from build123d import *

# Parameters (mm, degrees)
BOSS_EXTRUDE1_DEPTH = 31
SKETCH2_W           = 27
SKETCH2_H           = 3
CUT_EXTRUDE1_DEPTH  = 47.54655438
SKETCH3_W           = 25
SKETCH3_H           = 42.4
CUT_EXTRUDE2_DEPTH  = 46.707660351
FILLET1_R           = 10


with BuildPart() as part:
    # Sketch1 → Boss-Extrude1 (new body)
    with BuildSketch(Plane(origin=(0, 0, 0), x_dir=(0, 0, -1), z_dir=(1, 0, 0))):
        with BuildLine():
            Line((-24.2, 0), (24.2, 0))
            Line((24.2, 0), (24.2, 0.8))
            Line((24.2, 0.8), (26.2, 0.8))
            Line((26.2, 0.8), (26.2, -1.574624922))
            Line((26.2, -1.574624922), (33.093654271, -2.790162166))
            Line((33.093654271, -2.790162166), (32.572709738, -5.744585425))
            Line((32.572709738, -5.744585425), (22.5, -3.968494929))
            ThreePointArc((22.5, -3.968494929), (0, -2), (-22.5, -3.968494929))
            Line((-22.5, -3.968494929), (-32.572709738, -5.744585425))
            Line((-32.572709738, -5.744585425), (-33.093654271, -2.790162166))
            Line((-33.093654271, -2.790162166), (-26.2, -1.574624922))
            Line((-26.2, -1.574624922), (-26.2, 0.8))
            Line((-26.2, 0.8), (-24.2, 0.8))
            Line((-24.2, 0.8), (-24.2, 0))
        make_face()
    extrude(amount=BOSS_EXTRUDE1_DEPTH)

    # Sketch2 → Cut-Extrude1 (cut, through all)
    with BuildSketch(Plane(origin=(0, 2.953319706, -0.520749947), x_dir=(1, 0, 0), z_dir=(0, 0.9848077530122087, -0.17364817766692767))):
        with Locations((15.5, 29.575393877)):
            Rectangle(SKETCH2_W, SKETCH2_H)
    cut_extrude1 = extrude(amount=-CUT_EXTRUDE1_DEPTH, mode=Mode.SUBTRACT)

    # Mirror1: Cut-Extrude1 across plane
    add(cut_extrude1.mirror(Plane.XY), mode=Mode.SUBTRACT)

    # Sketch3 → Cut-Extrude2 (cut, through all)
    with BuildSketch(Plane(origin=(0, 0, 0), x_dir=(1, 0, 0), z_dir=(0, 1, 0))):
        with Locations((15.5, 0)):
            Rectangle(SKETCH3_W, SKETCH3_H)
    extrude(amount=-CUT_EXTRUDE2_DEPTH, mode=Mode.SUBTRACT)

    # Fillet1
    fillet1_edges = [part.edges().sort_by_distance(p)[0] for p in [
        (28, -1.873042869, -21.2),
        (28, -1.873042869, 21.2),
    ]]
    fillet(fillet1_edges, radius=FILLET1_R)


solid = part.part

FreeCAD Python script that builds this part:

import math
import FreeCAD as App
import Part
import Sketcher
from FreeCAD import Vector
Q = App.Units.Quantity


def edges_at(feature, points):
    """Names of the edges that pass closest to the given points."""
    edges = feature.Shape.Edges
    near = lambda p: min(range(len(edges)), key=lambda i: edges[i].distToShape(Part.Vertex(*p))[0])
    return sorted({f"Edge{near(p) + 1}" for p in points})


def add_polygon(sketch, points):
    """Adds a closed chain of lines whose ends are joined by coincident constraints."""
    first, n = sketch.GeometryCount, len(points)
    for a, b in zip(points, points[1:] + points[:1]):
        sketch.addGeometry(Part.LineSegment(App.Vector(*a, 0), App.Vector(*b, 0)), False)
    for i in range(n):
        sketch.addConstraint(Sketcher.Constraint("Coincident", first + i, 2, first + (i + 1) % n, 1))

doc = App.newDocument("Part")
params = doc.addObject("Spreadsheet::Sheet", "Params")
for row, (alias, value) in enumerate([
    ("sketch1_height", "2 mm"),
    ("sketch1_length", "7 mm"),
    ("sketch1_length2", "3 mm"),
    ("sketch1_width", "0.8 mm"),
    ("sketch1_height2", "48.4 mm"),
    ("pad1_length", "31 mm"),
    ("sketch2_width", "27 mm"),
    ("sketch2_height", "3 mm"),
    ("sketch3_width", "25 mm"),
    ("sketch3_height", "42.4 mm"),
    ("fillet_radius", "10 mm"),
], start=1):
    params.set(f"A{row}", alias)
    params.set(f"B{row}", "=" + value)
    params.setAlias(f"B{row}", alias)

body = doc.addObject("PartDesign::Body", "Body")

sketch1 = doc.addObject("Sketcher::SketchObject", "Sketch")
body.addObject(sketch1)
sketch1.AttachmentSupport = (doc.YZ_Plane, [""])
sketch1.MapMode = "FlatFace"
sketch1.addGeometry(Part.LineSegment(Vector(0, -24.2, 0), Vector(0, 24.2, 0)), False)
sketch1.addGeometry(Part.LineSegment(Vector(0, 24.2, 0), Vector(0.8, 24.2, 0)), False)
sketch1.addGeometry(Part.LineSegment(Vector(0.8, 24.2, 0), Vector(0.8, 26.2, 0)), False)
sketch1.addGeometry(Part.LineSegment(Vector(0.8, 26.2, 0), Vector(-1.6, 26.2, 0)), False)
sketch1.addGeometry(Part.LineSegment(Vector(-1.6, 26.2, 0), Vector(-2.8, 33.1, 0)), False)
sketch1.addGeometry(Part.LineSegment(Vector(-2.8, 33.1, 0), Vector(-5.7, 32.6, 0)), False)
sketch1.addGeometry(Part.LineSegment(Vector(-5.7, 32.6, 0), Vector(-4, 22.5, 0)), False)
sketch1.addGeometry(Part.ArcOfCircle(Part.Circle(Vector(-131.6, 0, 0), Vector(0, 0, 1), 129.6), math.radians(-10), math.radians(10)), False)
sketch1.addGeometry(Part.LineSegment(Vector(-4, -22.5, 0), Vector(-5.7, -32.6, 0)), False)
sketch1.addGeometry(Part.LineSegment(Vector(-5.7, -32.6, 0), Vector(-2.8, -33.1, 0)), False)
sketch1.addGeometry(Part.LineSegment(Vector(-2.8, -33.1, 0), Vector(-1.6, -26.2, 0)), False)
sketch1.addGeometry(Part.LineSegment(Vector(-1.6, -26.2, 0), Vector(0.8, -26.2, 0)), False)
sketch1.addGeometry(Part.LineSegment(Vector(0.8, -26.2, 0), Vector(0.8, -24.2, 0)), False)
sketch1.addGeometry(Part.LineSegment(Vector(0.8, -24.2, 0), Vector(0, -24.2, 0)), False)
sketch1.addConstraint(Sketcher.Constraint("Coincident", 0, 2, 1, 1))
sketch1.addConstraint(Sketcher.Constraint("Coincident", 1, 2, 2, 1))
sketch1.addConstraint(Sketcher.Constraint("Coincident", 2, 2, 3, 1))
sketch1.addConstraint(Sketcher.Constraint("Coincident", 3, 2, 4, 1))
sketch1.addConstraint(Sketcher.Constraint("Coincident", 4, 2, 5, 1))
sketch1.addConstraint(Sketcher.Constraint("Coincident", 5, 2, 6, 1))
sketch1.addConstraint(Sketcher.Constraint("Tangent", 6, 2, 7, 2))
sketch1.addConstraint(Sketcher.Constraint("Tangent", 7, 1, 8, 1))
sketch1.addConstraint(Sketcher.Constraint("Coincident", 8, 2, 9, 1))
sketch1.addConstraint(Sketcher.Constraint("Coincident", 9, 2, 10, 1))
sketch1.addConstraint(Sketcher.Constraint("Coincident", 10, 2, 11, 1))
sketch1.addConstraint(Sketcher.Constraint("Coincident", 11, 2, 12, 1))
sketch1.addConstraint(Sketcher.Constraint("Coincident", 12, 2, 13, 1))
sketch1.addConstraint(Sketcher.Constraint("Coincident", 13, 2, 0, 1))
sketch1.addConstraint(Sketcher.Constraint("Vertical", 0))
sketch1.addConstraint(Sketcher.Constraint("Horizontal", 1))
sketch1.addConstraint(Sketcher.Constraint("Vertical", 2))
sketch1.addConstraint(Sketcher.Constraint("Horizontal", 3))
sketch1.addConstraint(Sketcher.Constraint("Horizontal", 11))
sketch1.addConstraint(Sketcher.Constraint("Vertical", 12))
sketch1.addConstraint(Sketcher.Constraint("Horizontal", 13))
sketch1.addConstraint(Sketcher.Constraint("Symmetric", 0, 2, 13, 2, -1, 1))
sketch1.addConstraint(Sketcher.Constraint("Symmetric", 6, 2, 7, 1, -1))
sketch1.addConstraint(Sketcher.Constraint("Symmetric", 4, 2, 9, 2, -1))
sketch1.addConstraint(Sketcher.Constraint("Symmetric", 3, 2, 10, 2, -1))
sketch1.addConstraint(Sketcher.Constraint("Perpendicular", 4, 5))
sketch1.addConstraint(Sketcher.Constraint("Perpendicular", 5, 6))
sketch1.addConstraint(Sketcher.Constraint("Perpendicular", 8, 9))
sketch1.addConstraint(Sketcher.Constraint("Vertical", 2, 2, 11, 2))
sketch1.addConstraint(Sketcher.Constraint("DistanceY", 2, 1, 2, 2, 2.0))
sketch1.addConstraint(Sketcher.Constraint("Angle", 4, Q("100 deg")))
sketch1.addConstraint(Sketcher.Constraint("Distance", 4, 7.0))
sketch1.addConstraint(Sketcher.Constraint("Distance", 5, 3.0))
sketch1.addConstraint(Sketcher.Constraint("DistanceX", 1, 1, 1, 2, 0.8))
sketch1.addConstraint(Sketcher.Constraint("DistanceY", 0, 1, 0, 2, 48.4))
sketch1.addConstraint(Sketcher.Constraint("DistanceY", -1, 1, 6, 2, 22.5))
sketch1.addConstraint(Sketcher.Constraint("DistanceX", 3, 2, 3, 1, 2.374625))
sketch1.setExpression("Constraints[29]", "Params.sketch1_height")
sketch1.setExpression("Constraints[31]", "Params.sketch1_length")
sketch1.setExpression("Constraints[32]", "Params.sketch1_length2")
sketch1.setExpression("Constraints[33]", "Params.sketch1_width")
sketch1.setExpression("Constraints[34]", "Params.sketch1_height2")
pad1 = doc.addObject("PartDesign::Pad", "Pad")
body.addObject(pad1)
pad1.Profile = sketch1
pad1.setExpression("Length", "Params.pad1_length")

sketch2 = doc.addObject("Sketcher::SketchObject", "Sketch001")
body.addObject(sketch2)
sketch2.Placement = App.Placement(Vector(0, 2.95332, -0.52075), App.Rotation(Vector(1, 0, 0), Vector(0, -0.173648178, -0.984807753), Vector(0, 0.984807753, -0.173648178), "ZXY"))
add_polygon(sketch2, [(2, 31.1), (2, 28.1), (29, 28.1), (29, 31.1)])
sketch2.addConstraint(Sketcher.Constraint("Vertical", 0))
sketch2.addConstraint(Sketcher.Constraint("Horizontal", 1))
sketch2.addConstraint(Sketcher.Constraint("Vertical", 2))
sketch2.addConstraint(Sketcher.Constraint("Horizontal", 3))
sketch2.addConstraint(Sketcher.Constraint("DistanceX", 1, 1, 1, 2, 27.0))
sketch2.addConstraint(Sketcher.Constraint("DistanceY", 0, 2, 0, 1, 3.0))
sketch2.addConstraint(Sketcher.Constraint("DistanceX", -1, 1, 0, 2, 2.0))
sketch2.addConstraint(Sketcher.Constraint("DistanceY", -1, 1, 0, 2, 28.075394))
sketch2.setExpression("Constraints[8]", "Params.sketch2_width")
sketch2.setExpression("Constraints[9]", "Params.sketch2_height")
pocket1 = doc.addObject("PartDesign::Pocket", "Pocket")
body.addObject(pocket1)
pocket1.Profile = sketch2
pocket1.Type = "ThroughAll"
doc.recompute()

mirrored = doc.addObject("PartDesign::Mirrored", "Mirrored")
body.addObject(mirrored)
mirrored.Originals = [pocket1]
mirrored.MirrorPlane = (doc.XY_Plane, [""])
body.Tip = mirrored

sketch3 = doc.addObject("Sketcher::SketchObject", "Sketch002")
body.addObject(sketch3)
sketch3.AttachmentSupport = (doc.XZ_Plane, [""])
sketch3.MapMode = "FlatFace"
add_polygon(sketch3, [(3, -21), (3, 21), (28, 21), (28, -21)])
sketch3.addConstraint(Sketcher.Constraint("Vertical", 0))
sketch3.addConstraint(Sketcher.Constraint("Horizontal", 1))
sketch3.addConstraint(Sketcher.Constraint("Vertical", 2))
sketch3.addConstraint(Sketcher.Constraint("Horizontal", 3))
sketch3.addConstraint(Sketcher.Constraint("DistanceX", 1, 1, 1, 2, 25.0))
sketch3.addConstraint(Sketcher.Constraint("DistanceY", 0, 1, 0, 2, 42.4))
sketch3.addConstraint(Sketcher.Constraint("DistanceX", -1, 1, 0, 2, 3.0))
sketch3.addConstraint(Sketcher.Constraint("DistanceY", -1, 1, 0, 2, 21.2))
sketch3.setExpression("Constraints[8]", "Params.sketch3_width")
sketch3.setExpression("Constraints[9]", "Params.sketch3_height")
pocket2 = doc.addObject("PartDesign::Pocket", "Pocket001")
body.addObject(pocket2)
pocket2.Profile = sketch3
pocket2.Type = "ThroughAll"
pocket2.Reversed = True
doc.recompute()

fillet = doc.addObject("PartDesign::Fillet", "Fillet")
body.addObject(fillet)
fillet.Base = (pocket2, edges_at(pocket2, [(28, -1.873, -21.2), (28, -1.873, 21.2)]))
fillet.setExpression("Radius", "Params.fillet_radius")

doc.recompute()
